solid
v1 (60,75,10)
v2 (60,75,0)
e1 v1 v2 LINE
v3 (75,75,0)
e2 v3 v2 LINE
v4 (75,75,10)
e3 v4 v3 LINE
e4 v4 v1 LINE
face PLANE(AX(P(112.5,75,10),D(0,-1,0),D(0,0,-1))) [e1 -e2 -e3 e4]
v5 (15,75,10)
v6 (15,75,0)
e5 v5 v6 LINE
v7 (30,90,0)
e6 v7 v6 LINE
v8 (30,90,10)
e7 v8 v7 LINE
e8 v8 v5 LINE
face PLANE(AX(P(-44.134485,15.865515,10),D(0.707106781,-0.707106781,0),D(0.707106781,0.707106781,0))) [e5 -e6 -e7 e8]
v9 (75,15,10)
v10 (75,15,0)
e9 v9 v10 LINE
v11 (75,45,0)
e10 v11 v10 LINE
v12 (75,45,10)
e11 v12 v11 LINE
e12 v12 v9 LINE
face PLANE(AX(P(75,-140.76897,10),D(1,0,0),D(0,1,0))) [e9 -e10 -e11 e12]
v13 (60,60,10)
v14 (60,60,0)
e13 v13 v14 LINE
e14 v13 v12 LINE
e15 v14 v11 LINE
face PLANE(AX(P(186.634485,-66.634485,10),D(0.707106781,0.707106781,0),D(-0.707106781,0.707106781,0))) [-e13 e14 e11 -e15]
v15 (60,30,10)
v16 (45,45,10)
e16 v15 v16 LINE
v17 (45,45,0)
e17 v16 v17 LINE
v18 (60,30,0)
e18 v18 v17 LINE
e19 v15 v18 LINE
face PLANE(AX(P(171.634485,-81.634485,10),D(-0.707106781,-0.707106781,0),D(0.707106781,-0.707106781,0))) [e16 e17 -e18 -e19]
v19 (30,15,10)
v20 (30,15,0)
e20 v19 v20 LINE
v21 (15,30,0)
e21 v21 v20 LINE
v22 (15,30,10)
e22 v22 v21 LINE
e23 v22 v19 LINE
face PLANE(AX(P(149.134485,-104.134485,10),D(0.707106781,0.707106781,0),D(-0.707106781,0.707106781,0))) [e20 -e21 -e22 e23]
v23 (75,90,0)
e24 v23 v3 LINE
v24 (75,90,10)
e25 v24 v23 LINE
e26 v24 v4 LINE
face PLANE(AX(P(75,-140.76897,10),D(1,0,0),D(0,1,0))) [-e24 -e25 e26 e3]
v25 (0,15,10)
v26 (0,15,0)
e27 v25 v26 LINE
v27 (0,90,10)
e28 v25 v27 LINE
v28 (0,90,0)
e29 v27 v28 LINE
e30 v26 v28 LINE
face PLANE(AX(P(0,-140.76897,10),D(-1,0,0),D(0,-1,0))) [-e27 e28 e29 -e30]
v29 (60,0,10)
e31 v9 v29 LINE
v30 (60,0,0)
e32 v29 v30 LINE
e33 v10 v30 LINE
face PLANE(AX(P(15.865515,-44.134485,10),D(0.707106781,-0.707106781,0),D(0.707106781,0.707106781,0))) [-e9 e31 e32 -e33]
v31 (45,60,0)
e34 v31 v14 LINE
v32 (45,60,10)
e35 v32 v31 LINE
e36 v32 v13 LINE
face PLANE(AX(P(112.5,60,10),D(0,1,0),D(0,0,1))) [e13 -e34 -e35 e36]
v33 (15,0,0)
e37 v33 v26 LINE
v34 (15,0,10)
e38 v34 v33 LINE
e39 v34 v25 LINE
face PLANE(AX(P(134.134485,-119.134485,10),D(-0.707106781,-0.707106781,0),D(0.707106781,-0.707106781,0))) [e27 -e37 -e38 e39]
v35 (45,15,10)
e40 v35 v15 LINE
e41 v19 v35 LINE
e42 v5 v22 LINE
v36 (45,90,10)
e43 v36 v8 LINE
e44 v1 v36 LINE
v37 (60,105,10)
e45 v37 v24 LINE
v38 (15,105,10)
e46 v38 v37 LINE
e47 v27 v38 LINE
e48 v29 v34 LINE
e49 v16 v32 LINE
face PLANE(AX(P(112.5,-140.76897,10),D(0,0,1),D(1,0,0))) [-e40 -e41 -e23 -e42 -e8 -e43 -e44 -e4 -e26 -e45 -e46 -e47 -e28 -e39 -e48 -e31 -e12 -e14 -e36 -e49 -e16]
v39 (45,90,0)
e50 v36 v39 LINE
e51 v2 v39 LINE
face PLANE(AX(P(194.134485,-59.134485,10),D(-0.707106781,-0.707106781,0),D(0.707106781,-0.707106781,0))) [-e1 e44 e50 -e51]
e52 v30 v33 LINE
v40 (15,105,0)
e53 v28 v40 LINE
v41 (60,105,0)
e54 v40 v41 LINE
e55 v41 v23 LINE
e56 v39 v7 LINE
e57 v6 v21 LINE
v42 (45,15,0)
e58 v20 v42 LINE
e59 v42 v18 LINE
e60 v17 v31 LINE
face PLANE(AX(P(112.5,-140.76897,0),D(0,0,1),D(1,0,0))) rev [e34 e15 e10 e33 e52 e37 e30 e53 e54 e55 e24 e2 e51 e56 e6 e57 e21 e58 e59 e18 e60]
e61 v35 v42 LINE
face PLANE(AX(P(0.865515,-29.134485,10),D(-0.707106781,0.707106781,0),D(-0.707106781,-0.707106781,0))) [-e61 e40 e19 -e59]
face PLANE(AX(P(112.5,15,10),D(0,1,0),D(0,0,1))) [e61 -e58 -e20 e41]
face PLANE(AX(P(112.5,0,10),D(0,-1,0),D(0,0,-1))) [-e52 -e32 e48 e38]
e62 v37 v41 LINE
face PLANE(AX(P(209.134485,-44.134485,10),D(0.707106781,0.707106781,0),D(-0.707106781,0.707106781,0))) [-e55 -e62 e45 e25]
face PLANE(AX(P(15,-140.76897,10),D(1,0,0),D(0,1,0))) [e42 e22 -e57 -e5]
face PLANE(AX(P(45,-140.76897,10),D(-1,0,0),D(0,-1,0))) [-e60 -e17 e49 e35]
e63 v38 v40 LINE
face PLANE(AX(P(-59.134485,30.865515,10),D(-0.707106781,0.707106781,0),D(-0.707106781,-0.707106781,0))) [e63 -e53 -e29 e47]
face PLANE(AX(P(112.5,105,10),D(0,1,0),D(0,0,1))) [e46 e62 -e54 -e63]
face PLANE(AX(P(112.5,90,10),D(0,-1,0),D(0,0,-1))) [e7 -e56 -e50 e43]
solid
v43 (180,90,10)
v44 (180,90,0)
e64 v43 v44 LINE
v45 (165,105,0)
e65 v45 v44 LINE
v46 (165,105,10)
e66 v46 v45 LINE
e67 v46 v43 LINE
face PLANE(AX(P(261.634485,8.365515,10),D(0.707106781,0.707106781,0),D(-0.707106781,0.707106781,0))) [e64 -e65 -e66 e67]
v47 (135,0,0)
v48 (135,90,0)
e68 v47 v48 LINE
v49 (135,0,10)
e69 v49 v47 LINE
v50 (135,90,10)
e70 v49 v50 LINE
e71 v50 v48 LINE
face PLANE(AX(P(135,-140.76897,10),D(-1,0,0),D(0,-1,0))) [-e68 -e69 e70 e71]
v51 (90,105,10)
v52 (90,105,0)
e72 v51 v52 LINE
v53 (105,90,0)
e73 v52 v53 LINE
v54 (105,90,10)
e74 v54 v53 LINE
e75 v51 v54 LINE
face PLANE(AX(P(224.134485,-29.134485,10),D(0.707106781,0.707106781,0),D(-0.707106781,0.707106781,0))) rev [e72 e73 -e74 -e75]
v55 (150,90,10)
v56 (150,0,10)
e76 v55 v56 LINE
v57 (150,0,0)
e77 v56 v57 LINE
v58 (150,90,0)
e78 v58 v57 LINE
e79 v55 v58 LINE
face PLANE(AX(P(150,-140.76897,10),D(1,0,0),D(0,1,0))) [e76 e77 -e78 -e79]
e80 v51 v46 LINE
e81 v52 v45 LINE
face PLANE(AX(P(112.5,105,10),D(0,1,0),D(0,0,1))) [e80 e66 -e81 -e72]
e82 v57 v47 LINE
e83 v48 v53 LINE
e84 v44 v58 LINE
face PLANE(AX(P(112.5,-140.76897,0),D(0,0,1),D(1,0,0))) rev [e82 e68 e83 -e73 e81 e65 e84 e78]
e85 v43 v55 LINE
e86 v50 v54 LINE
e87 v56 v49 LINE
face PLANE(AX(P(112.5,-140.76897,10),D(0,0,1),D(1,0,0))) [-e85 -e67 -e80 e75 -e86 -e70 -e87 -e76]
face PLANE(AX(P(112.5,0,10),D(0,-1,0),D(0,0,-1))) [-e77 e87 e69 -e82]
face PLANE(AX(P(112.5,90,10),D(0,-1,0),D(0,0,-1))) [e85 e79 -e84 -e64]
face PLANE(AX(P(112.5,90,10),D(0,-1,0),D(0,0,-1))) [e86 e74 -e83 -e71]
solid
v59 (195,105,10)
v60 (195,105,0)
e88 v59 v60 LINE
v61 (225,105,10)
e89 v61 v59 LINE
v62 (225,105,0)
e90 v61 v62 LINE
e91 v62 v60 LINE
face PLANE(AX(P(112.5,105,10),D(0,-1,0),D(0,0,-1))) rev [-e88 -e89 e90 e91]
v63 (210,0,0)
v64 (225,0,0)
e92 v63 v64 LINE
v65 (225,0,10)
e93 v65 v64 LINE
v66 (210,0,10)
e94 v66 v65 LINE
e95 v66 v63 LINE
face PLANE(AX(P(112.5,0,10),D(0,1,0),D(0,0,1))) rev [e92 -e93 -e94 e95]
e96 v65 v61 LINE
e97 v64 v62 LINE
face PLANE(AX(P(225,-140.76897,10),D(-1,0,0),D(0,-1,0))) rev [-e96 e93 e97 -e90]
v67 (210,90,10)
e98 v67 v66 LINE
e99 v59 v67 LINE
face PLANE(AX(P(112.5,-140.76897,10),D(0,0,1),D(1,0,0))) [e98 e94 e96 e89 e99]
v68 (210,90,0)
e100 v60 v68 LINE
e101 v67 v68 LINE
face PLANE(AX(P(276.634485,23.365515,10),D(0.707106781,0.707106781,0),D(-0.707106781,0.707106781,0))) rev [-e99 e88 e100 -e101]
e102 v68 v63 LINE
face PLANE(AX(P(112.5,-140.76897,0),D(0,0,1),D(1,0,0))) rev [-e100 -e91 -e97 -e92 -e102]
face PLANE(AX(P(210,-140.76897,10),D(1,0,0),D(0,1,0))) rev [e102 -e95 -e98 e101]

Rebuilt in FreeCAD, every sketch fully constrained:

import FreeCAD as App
import Part
import Sketcher

V = App.Vector
Q = App.Units.Quantity


def add_polygon(sketch, points):
    """Adds a closed chain of lines whose ends are joined by coincident constraints."""
    first, n = sketch.GeometryCount, len(points)
    for a, b in zip(points, points[1:] + points[:1]):
        sketch.addGeometry(Part.LineSegment(App.Vector(*a, 0), App.Vector(*b, 0)), False)
    for i in range(n):
        sketch.addConstraint(Sketcher.Constraint("Coincident", first + i, 2, first + (i + 1) % n, 1))

doc = App.newDocument("Part")
params = doc.addObject("Spreadsheet::Sheet", "Params")
for row, (alias, value) in enumerate([
    ("sketch1_width", "15 mm"),
    ("pad1_length", "10 mm"),
], start=1):
    params.set(f"A{row}", alias)
    params.set(f"B{row}", "=" + value)
    params.setAlias(f"B{row}", alias)

body = doc.addObject("PartDesign::Body", "Body")
body.AllowCompound = True

# Sketch on XY plane
sketch1 = body.newObject("Sketcher::SketchObject", "Sketch")
sketch1.AttachmentSupport = (doc.getObject("XY_Plane"), [""])
sketch1.MapMode = "FlatFace"
add_polygon(sketch1, [(60, 0), (75, 15), (75, 45), (60, 60), (45, 60), (45, 45), (60, 30), (45, 15), (30, 15), (15, 30), (15, 75), (30, 90), (45, 90), (60, 75), (75, 75), (75, 90), (60, 105), (15, 105), (0, 90), (0, 15), (15, 0)])  # lines 0-20
add_polygon(sketch1, [(105, 90), (135, 90), (135, 0), (150, 0), (150, 90), (180, 90), (165, 105), (90, 105)])  # lines 21-28
add_polygon(sketch1, [(225, 0), (225, 105), (195, 105), (210, 90), (210, 0)])  # lines 29-33
sketch1.addConstraint([
    Sketcher.Constraint("Vertical", 1),
    Sketcher.Constraint("Horizontal", 3),
    Sketcher.Constraint("Vertical", 4),
    Sketcher.Constraint("Horizontal", 7),
    Sketcher.Constraint("Vertical", 9),
    Sketcher.Constraint("Horizontal", 11),
    Sketcher.Constraint("Horizontal", 13),
    Sketcher.Constraint("Vertical", 14),
    Sketcher.Constraint("Horizontal", 16),
    Sketcher.Constraint("Vertical", 18),
    Sketcher.Constraint("Horizontal", 20),
    Sketcher.Constraint("Horizontal", 21),
    Sketcher.Constraint("Vertical", 22),
    Sketcher.Constraint("Horizontal", 23),
    Sketcher.Constraint("Vertical", 24),
    Sketcher.Constraint("Horizontal", 25),
    Sketcher.Constraint("Horizontal", 27),
    Sketcher.Constraint("Vertical", 29),
    Sketcher.Constraint("Horizontal", 30),
    Sketcher.Constraint("Vertical", 32),
    Sketcher.Constraint("Horizontal", 33),
    Sketcher.Constraint("PointOnObject", 17, 2, -2),
    Sketcher.Constraint("PointOnObject", 19, 2, -1),
    Sketcher.Constraint("PointOnObject", 22, 2, -1),
    Sketcher.Constraint("PointOnObject", 32, 2, -1),
    Sketcher.Constraint("Perpendicular", 0, 2),
    Sketcher.Constraint("Parallel", 2, 5),
    Sketcher.Constraint("Perpendicular", 5, 6),
    Sketcher.Constraint("Perpendicular", 6, 8),
    Sketcher.Constraint("Perpendicular", 8, 10),
    Sketcher.Constraint("Perpendicular", 10, 12),
    Sketcher.Constraint("Parallel", 12, 15),
    Sketcher.Constraint("Perpendicular", 15, 17),
    Sketcher.Constraint("Perpendicular", 17, 19),
    Sketcher.Constraint("Parallel", 19, 26),
    Sketcher.Constraint("Parallel", 26, 28),
    Sketcher.Constraint("Parallel", 28, 31),
    Sketcher.Constraint("Horizontal", 1, 2, 4, 2),
    Sketcher.Constraint("Horizontal", 0, 2, 6, 2),
    Sketcher.Constraint("Horizontal", 5, 2, 8, 2),
    Sketcher.Constraint("Horizontal", 9, 2, 12, 2),
    Sketcher.Constraint("Horizontal", 11, 2, 14, 2),
    Sketcher.Constraint("Horizontal", 14, 2, 17, 2),
    Sketcher.Constraint("Horizontal", 7, 2, 18, 2),
    Sketcher.Constraint("Horizontal", 17, 2, 21, 2),
    Sketcher.Constraint("Horizontal", 21, 2, 24, 2),
    Sketcher.Constraint("Horizontal", 16, 2, 26, 2),
    Sketcher.Constraint("Horizontal", 27, 2, 29, 2),
    Sketcher.Constraint("Horizontal", 28, 2, 31, 2),
    Sketcher.Constraint("Vertical", 2, 2, 5, 2),
    Sketcher.Constraint("Vertical", 4, 2, 6, 2),
    Sketcher.Constraint("Vertical", 7, 2, 10, 2),
    Sketcher.Constraint("Vertical", 6, 2, 11, 2),
    Sketcher.Constraint("Vertical", 5, 2, 12, 2),
    Sketcher.Constraint("Vertical", 1, 2, 13, 2),
    Sketcher.Constraint("Vertical", 12, 2, 15, 2),
    Sketcher.Constraint("Vertical", 9, 2, 16, 2),
    Sketcher.Constraint("Vertical", 16, 2, 19, 2),
    Sketcher.Constraint("Equal", 3, 7),
    Sketcher.Constraint("Equal", 11, 13),
    Sketcher.Constraint("Equal", 13, 23),
    Sketcher.Constraint("Equal", 21, 25),
    Sketcher.Constraint("Equal", 25, 30),
    Sketcher.Constraint("Equal", 23, 33),
    Sketcher.Constraint("Equal", 20, 9),
    Sketcher.Constraint("DistanceX", 3, 2, 3, 1, Q("15 mm")),
    Sketcher.Constraint("DistanceX", -1, 1, 21, 2, Q("135 mm")),
    Sketcher.Constraint("DistanceX", -1, 1, 29, 2, Q("225 mm")),
])
sketch1.setExpression("Constraints[99]", "Params.sketch1_width")
pad1 = body.newObject("PartDesign::Pad", "Pad")
pad1.Profile = sketch1
pad1.setExpression("Length", "Params.pad1_length")

doc.recompute()
